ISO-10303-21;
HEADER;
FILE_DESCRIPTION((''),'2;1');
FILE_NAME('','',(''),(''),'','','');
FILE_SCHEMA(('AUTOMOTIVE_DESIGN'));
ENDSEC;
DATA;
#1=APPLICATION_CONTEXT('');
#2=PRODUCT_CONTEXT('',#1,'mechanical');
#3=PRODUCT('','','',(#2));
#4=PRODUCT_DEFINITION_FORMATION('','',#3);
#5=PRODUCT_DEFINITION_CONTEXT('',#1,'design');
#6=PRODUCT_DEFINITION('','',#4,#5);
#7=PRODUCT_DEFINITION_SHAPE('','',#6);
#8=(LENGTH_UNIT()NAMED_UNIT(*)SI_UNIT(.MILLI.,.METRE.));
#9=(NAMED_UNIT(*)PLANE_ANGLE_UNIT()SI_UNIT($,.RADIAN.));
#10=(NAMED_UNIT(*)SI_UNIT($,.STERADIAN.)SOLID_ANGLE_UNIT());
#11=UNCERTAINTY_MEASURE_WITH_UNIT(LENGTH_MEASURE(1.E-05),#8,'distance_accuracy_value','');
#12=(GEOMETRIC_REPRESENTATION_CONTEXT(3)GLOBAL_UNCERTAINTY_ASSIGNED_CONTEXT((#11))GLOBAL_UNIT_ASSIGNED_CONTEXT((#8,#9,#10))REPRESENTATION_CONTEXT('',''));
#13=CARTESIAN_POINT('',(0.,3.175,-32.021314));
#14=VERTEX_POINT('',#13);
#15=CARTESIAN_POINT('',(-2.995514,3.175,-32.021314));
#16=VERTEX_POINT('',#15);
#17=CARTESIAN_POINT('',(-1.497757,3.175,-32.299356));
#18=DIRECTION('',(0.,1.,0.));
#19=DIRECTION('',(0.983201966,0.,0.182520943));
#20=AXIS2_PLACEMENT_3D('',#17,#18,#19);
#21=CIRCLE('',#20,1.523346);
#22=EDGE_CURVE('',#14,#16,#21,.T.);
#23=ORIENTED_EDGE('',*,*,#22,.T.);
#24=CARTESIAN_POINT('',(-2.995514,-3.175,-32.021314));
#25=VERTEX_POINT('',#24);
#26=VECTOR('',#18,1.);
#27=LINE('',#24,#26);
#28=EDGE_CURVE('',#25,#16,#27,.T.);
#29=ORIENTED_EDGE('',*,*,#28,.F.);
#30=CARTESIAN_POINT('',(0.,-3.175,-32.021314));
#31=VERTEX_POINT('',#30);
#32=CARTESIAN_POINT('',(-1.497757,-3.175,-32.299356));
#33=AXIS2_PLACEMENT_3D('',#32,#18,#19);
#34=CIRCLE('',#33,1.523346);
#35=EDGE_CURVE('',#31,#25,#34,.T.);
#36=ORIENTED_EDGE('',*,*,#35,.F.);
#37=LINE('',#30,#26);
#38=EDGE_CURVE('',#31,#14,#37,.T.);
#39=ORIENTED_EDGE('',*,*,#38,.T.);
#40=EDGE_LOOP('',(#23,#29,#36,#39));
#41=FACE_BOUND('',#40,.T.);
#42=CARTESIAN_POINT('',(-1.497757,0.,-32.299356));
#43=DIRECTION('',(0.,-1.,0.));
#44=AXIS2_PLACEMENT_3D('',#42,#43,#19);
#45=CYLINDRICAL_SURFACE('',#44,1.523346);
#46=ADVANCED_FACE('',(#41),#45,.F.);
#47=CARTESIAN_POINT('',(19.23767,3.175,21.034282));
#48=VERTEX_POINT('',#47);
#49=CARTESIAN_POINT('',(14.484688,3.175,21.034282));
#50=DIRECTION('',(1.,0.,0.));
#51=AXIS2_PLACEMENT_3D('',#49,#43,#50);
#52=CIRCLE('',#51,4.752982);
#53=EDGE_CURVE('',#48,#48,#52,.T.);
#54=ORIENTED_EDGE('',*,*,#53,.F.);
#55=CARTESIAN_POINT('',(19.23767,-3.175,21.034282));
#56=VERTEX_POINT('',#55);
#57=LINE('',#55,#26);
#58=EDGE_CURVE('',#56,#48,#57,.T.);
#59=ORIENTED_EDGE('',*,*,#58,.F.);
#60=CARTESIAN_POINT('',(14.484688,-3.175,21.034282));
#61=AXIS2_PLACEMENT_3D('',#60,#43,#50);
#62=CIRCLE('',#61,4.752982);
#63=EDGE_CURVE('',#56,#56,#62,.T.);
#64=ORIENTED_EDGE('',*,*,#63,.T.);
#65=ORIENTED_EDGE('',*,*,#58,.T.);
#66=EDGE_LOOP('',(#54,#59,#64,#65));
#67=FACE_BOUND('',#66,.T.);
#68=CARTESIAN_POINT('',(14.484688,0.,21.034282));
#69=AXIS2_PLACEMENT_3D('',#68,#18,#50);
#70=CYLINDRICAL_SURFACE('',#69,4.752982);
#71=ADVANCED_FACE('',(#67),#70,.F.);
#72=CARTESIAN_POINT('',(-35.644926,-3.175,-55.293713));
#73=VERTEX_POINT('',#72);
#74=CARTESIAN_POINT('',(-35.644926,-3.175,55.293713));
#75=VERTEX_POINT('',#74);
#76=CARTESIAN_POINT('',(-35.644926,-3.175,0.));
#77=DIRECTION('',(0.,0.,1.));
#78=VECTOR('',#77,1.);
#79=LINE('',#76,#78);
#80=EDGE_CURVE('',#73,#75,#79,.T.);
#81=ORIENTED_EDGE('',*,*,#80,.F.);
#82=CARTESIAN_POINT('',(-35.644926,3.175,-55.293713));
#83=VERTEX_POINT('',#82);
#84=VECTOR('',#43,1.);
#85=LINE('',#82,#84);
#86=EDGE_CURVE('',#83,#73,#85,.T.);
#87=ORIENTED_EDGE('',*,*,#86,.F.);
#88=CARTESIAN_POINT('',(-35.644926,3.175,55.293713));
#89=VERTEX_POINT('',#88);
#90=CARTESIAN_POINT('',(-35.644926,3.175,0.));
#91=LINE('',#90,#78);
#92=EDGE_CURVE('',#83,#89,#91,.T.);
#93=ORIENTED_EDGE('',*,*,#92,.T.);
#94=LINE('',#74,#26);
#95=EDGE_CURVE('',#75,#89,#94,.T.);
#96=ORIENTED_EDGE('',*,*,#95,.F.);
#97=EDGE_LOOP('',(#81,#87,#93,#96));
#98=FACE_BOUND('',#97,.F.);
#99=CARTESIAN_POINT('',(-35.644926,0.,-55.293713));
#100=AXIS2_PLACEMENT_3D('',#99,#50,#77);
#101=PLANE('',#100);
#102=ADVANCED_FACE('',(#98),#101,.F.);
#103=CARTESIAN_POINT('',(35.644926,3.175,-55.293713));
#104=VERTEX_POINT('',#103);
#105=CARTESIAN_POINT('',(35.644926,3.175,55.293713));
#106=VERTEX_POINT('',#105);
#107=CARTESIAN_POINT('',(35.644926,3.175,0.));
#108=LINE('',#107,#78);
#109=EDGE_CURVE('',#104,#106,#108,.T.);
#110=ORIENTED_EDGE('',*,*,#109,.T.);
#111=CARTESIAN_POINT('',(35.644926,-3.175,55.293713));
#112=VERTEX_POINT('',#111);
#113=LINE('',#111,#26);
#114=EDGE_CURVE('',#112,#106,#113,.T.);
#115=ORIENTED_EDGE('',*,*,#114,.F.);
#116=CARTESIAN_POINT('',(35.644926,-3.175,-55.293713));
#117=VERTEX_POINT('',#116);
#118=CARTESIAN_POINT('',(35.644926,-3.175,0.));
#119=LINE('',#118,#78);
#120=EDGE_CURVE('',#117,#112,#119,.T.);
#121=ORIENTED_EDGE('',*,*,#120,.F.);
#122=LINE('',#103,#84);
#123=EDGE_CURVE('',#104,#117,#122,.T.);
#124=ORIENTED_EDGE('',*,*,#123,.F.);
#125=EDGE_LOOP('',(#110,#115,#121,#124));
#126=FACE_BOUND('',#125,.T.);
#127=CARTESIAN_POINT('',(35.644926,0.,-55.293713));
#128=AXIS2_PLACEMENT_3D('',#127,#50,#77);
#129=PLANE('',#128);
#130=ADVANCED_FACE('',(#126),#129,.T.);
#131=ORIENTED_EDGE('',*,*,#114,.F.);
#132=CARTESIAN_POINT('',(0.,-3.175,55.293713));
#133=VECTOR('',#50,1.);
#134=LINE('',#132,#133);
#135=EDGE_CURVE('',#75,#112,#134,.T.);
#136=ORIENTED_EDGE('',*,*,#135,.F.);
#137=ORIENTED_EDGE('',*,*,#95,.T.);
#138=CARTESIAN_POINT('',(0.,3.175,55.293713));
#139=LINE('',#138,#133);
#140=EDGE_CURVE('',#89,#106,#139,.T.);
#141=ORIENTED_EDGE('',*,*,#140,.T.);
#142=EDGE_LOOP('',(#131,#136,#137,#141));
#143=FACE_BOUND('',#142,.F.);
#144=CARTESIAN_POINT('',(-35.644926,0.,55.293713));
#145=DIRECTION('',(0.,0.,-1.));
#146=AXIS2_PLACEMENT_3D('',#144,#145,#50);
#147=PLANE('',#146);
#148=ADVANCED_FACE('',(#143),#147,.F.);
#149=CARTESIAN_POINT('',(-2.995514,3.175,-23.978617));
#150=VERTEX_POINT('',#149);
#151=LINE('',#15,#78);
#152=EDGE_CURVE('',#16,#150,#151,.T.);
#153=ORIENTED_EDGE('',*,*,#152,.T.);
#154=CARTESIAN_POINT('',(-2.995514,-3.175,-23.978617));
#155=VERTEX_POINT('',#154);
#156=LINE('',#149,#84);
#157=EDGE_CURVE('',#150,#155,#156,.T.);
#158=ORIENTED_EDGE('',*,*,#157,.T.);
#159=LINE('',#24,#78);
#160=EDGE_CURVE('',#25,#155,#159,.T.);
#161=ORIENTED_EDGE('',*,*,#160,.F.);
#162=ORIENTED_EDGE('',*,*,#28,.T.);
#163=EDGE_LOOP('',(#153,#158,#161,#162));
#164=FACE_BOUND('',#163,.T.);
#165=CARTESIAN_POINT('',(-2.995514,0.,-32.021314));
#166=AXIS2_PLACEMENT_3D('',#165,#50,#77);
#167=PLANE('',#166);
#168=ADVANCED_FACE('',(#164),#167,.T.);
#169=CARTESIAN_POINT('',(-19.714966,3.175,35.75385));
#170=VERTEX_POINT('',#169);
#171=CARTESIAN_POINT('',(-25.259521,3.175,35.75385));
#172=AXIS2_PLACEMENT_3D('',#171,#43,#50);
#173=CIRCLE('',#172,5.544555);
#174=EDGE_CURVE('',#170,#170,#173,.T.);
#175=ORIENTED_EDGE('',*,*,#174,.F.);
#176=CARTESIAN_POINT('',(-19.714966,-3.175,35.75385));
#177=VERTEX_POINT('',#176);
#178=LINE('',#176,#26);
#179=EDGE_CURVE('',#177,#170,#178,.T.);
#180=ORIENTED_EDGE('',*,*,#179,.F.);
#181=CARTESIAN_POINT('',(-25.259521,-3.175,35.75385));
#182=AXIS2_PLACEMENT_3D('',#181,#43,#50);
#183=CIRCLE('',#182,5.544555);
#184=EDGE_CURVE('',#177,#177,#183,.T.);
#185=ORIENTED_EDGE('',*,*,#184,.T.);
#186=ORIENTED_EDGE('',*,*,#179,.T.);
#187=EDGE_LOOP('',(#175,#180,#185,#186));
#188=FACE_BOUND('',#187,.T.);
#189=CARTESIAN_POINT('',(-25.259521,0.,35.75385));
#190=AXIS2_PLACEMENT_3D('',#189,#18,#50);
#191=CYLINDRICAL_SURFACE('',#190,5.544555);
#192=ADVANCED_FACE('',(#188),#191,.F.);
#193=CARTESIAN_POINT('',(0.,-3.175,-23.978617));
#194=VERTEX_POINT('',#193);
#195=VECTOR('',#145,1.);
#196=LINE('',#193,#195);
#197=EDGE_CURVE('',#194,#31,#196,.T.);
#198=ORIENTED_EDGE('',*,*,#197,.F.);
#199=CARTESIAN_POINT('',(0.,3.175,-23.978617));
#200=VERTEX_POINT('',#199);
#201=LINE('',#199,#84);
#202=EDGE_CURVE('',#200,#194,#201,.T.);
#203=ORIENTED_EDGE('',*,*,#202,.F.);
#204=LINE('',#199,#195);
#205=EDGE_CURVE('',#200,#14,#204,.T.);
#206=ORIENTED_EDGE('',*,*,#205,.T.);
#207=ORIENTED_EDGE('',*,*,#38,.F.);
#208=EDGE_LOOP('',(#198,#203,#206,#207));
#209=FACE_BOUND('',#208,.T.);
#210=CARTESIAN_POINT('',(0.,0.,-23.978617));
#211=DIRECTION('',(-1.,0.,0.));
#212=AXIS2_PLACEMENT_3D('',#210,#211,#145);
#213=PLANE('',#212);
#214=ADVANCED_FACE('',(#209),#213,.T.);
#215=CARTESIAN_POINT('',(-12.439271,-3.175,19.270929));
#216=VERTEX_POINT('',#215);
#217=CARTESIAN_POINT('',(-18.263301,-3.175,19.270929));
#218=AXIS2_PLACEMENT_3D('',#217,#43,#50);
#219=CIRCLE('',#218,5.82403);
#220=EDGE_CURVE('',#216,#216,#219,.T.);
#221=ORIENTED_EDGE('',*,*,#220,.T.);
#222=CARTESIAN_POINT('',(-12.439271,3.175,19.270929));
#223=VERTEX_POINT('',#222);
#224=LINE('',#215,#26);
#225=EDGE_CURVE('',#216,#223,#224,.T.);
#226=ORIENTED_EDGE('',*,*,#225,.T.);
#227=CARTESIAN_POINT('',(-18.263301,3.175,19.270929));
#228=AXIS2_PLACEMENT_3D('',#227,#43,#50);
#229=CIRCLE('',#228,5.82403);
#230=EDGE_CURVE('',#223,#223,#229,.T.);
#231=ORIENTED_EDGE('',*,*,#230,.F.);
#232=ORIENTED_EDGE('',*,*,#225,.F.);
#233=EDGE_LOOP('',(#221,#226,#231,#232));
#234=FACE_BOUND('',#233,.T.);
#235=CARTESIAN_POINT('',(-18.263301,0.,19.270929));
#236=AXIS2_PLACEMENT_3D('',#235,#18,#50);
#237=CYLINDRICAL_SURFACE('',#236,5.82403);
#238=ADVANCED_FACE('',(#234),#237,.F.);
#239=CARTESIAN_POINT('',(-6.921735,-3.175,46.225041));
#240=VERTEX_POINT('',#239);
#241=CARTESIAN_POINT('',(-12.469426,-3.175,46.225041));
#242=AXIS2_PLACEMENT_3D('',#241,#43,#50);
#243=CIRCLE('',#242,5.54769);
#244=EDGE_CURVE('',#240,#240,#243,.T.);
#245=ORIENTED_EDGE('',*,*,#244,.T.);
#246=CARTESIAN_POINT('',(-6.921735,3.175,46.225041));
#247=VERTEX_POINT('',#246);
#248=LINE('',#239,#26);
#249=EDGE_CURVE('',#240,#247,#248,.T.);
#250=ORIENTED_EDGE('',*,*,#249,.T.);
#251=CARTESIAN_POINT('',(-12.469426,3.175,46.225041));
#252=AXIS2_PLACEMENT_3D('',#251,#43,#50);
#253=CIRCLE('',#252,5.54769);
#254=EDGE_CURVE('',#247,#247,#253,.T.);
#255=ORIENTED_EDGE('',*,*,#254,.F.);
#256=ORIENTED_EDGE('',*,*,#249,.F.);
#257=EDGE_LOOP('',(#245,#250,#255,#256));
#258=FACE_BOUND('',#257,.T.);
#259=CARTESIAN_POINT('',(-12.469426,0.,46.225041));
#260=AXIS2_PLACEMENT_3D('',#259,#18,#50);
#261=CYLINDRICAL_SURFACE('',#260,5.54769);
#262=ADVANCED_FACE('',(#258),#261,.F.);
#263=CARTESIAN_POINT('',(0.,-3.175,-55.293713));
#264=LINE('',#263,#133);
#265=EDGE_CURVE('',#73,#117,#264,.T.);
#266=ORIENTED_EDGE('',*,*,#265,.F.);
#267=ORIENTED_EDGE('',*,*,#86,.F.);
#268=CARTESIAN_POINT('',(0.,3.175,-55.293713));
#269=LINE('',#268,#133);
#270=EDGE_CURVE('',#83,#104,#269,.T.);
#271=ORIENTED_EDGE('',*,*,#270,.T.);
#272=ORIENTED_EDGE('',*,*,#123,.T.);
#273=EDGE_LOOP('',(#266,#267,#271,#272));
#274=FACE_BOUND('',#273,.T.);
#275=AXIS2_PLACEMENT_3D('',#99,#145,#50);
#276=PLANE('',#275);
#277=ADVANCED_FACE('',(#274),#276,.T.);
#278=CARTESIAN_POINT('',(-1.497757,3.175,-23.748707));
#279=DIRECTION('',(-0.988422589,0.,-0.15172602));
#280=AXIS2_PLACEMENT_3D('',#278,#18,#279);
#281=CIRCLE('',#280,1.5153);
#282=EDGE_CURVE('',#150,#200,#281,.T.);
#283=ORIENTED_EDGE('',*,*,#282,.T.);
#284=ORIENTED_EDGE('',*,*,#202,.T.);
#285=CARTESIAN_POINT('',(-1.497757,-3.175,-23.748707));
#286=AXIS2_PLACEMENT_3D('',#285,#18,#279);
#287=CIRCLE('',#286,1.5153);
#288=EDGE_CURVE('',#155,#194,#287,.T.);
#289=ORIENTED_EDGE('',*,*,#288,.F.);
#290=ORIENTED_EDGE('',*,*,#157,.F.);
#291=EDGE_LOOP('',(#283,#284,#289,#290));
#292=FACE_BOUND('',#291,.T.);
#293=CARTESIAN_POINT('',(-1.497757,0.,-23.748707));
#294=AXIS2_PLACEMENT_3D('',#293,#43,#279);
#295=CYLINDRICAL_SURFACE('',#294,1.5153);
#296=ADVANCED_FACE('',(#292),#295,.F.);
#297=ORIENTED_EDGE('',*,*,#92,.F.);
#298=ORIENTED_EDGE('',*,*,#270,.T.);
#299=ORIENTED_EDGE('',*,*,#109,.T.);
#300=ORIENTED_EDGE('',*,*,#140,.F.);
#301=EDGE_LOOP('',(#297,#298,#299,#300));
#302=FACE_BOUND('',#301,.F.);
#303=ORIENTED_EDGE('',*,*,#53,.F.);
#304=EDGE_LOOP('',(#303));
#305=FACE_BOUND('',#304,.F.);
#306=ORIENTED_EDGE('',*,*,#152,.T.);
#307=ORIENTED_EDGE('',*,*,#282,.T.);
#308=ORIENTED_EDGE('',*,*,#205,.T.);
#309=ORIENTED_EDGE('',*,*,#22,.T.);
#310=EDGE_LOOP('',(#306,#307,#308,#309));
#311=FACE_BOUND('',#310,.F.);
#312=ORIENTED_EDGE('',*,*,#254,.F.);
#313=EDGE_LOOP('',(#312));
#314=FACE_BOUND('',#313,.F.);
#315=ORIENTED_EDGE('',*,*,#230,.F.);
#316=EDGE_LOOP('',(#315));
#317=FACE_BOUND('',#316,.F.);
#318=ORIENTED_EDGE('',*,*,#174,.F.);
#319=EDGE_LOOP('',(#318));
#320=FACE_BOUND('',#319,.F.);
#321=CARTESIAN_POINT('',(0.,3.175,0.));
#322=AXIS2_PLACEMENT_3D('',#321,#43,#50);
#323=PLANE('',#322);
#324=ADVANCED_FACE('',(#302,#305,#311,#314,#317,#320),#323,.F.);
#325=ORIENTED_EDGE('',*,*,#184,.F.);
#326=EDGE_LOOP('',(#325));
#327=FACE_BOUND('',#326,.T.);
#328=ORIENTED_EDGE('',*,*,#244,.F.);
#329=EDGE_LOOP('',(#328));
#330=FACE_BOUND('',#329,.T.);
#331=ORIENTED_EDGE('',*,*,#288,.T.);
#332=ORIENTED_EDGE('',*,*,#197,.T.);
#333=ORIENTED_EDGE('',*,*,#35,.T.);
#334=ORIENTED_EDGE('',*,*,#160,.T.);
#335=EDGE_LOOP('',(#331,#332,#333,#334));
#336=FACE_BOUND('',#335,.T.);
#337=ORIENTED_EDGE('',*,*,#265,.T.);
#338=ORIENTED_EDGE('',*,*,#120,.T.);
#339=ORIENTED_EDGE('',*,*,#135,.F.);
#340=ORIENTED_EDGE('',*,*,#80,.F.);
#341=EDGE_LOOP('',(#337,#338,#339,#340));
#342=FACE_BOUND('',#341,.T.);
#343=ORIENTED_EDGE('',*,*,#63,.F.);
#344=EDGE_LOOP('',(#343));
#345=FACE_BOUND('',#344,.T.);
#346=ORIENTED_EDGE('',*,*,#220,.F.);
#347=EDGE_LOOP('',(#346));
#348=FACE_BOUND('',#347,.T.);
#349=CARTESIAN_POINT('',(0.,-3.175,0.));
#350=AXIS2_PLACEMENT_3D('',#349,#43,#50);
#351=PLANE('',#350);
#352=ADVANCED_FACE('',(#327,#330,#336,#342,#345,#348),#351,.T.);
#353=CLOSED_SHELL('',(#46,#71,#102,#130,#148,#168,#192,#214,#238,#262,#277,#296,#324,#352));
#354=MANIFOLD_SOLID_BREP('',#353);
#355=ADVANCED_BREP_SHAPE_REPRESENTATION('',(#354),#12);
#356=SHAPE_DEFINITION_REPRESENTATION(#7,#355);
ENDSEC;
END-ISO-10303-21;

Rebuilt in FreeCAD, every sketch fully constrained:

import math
import FreeCAD as App
import Part
import Sketcher

V = App.Vector
Q = App.Units.Quantity

doc = App.newDocument("Part")
body = doc.addObject("PartDesign::Body", "Body")

# Sketch on XZ plane
sketch1 = body.newObject("Sketcher::SketchObject", "Sketch")
sketch1.AttachmentSupport = (doc.getObject("XZ_Plane"), [""])
sketch1.MapMode = "FlatFace"
sketch1.addGeometry([
    Part.LineSegment(V(-35.644926, 55.293713, 0), V(-35.644926, -55.293713, 0)),  # 0
    Part.LineSegment(V(-35.644926, -55.293713, 0), V(35.644926, -55.293713, 0)),  # 1
    Part.LineSegment(V(35.644926, -55.293713, 0), V(35.644926, 55.293713, 0)),  # 2
    Part.LineSegment(V(35.644926, 55.293713, 0), V(-35.644926, 55.293713, 0)),  # 3
    Part.LineSegment(V(-2.995514, -32.021314, 0), V(-2.995514, -23.978617, 0)),  # 4
    Part.ArcOfCircle(Part.Circle(V(-1.497757, -23.748707, 0), V(0, 0, 1), 1.5153), math.radians(-8.726965), math.radians(188.726965)),  # 5
    Part.LineSegment(V(0, -23.978617, 0), V(0, -32.021314, 0)),  # 6
    Part.ArcOfCircle(Part.Circle(V(-1.497757, -32.299356, 0), V(0, 0, 1), 1.523346), math.radians(169.483368), math.radians(370.516632)),  # 7
    Part.Circle(V(-18.263301, 19.270929, 0), V(0, 0, 1), 5.82403),  # 8
    Part.Circle(V(-25.259521, 35.75385, 0), V(0, 0, 1), 5.544555),  # 9
    Part.Circle(V(-12.469426, 46.225041, 0), V(0, 0, 1), 5.54769),  # 10
    Part.Circle(V(14.484688, 21.034282, 0), V(0, 0, 1), 4.752982),  # 11
], False)
sketch1.addConstraint([
    Sketcher.Constraint("Coincident", 0, 2, 1, 1),
    Sketcher.Constraint("Coincident", 1, 2, 2, 1),
    Sketcher.Constraint("Coincident", 2, 2, 3, 1),
    Sketcher.Constraint("Coincident", 3, 2, 0, 1),
    Sketcher.Constraint("Coincident", 4, 2, 5, 2),
    Sketcher.Constraint("Coincident", 5, 1, 6, 1),
    Sketcher.Constraint("Coincident", 6, 2, 7, 2),
    Sketcher.Constraint("Coincident", 7, 1, 4, 1),
    Sketcher.Constraint("Vertical", 0),
    Sketcher.Constraint("Horizontal", 1),
    Sketcher.Constraint("Vertical", 2),
    Sketcher.Constraint("Horizontal", 3),
    Sketcher.Constraint("Vertical", 4),
    Sketcher.Constraint("Vertical", 6),
    Sketcher.Constraint("Symmetric", 0, 2, 2, 2, -1, 1),
    Sketcher.Constraint("PointOnObject", 5, 1, -2),
    Sketcher.Constraint("Horizontal", 4, 2, 5, 1),
    Sketcher.Constraint("Horizontal", 6, 2, 7, 1),
    Sketcher.Constraint("Radius", 5, Q("1.5153 mm")),
    Sketcher.Constraint("Diameter", 8, Q("11.648061 mm")),
    Sketcher.Constraint("Diameter", 9, Q("11.089109 mm")),
    Sketcher.Constraint("Diameter", 10, Q("11.095381 mm")),
    Sketcher.Constraint("Diameter", 11, Q("9.505964 mm")),
    Sketcher.Constraint("Radius", 7, Q("1.523346 mm")),
    Sketcher.Constraint("DistanceX", 8, 3, -1, 1, Q("18.263301 mm")),
    Sketcher.Constraint("DistanceX", 3, 2, 10, 3, Q("23.1755 mm")),
    Sketcher.Constraint("DistanceX", 4, 2, 11, 3, Q("17.480202 mm")),
    Sketcher.Constraint("DistanceY", 4, 2, 11, 3, Q("45.012899 mm")),
    Sketcher.Constraint("DistanceY", 0, 2, 6, 2, Q("23.272399 mm")),
    Sketcher.Constraint("DistanceX", 1, 1, 1, 2, Q("71.289852 mm")),
    Sketcher.Constraint("DistanceY", 0, 2, 0, 1, Q("110.587426 mm")),
    Sketcher.Constraint("DistanceY", 4, 1, 4, 2, Q("8.042697 mm")),
    Sketcher.Constraint("DistanceY", -1, 1, 8, 3, Q("19.270929 mm")),
    Sketcher.Constraint("DistanceX", 9, 3, -1, 1, Q("25.259521 mm")),
    Sketcher.Constraint("DistanceY", -1, 1, 9, 3, Q("35.75385 mm")),
    Sketcher.Constraint("DistanceY", -1, 1, 10, 3, Q("46.225041 mm")),
    Sketcher.Constraint("DistanceY", 7, 3, 5, 3, Q("8.55065 mm")),
])
pad1 = body.newObject("PartDesign::Pad", "Pad")
pad1.Profile = sketch1
pad1.Length = Q("0.25 in")
pad1.Midplane = True

# Sketch on XZ plane
sketch2 = body.newObject("Sketcher::SketchObject", "Sketch001")
sketch2.AttachmentSupport = (doc.getObject("XZ_Plane"), [""])
sketch2.MapMode = "FlatFace"
sketch2.addGeometry([
    Part.LineSegment(V(-35.644926, 55.293713, 0), V(-35.644926, -55.293713, 0)),  # 0
    Part.LineSegment(V(-35.644926, -55.293713, 0), V(35.644926, -55.293713, 0)),  # 1
    Part.LineSegment(V(35.644926, -55.293713, 0), V(35.644926, 55.293713, 0)),  # 2
    Part.LineSegment(V(35.644926, 55.293713, 0), V(-35.644926, 55.293713, 0)),  # 3
    Part.LineSegment(V(-2.995514, -32.021314, 0), V(-2.995514, -23.978617, 0)),  # 4
    Part.ArcOfCircle(Part.Circle(V(-1.497757, -23.748707, 0), V(0, 0, 1), 1.5153), math.radians(-8.726965), math.radians(188.726965)),  # 5
    Part.LineSegment(V(0, -23.978617, 0), V(0, -32.021314, 0)),  # 6
    Part.ArcOfCircle(Part.Circle(V(-1.497757, -32.299356, 0), V(0, 0, 1), 1.523346), math.radians(169.483368), math.radians(370.516632)),  # 7
    Part.Circle(V(-18.263301, 19.270929, 0), V(0, 0, 1), 5.82403),  # 8
    Part.Circle(V(-25.259521, 35.75385, 0), V(0, 0, 1), 5.544555),  # 9
    Part.Circle(V(-12.469426, 46.225041, 0), V(0, 0, 1), 5.54769),  # 10
    Part.Circle(V(14.484688, 21.034282, 0), V(0, 0, 1), 4.752982),  # 11
], False)
sketch2.addConstraint([
    Sketcher.Constraint("Coincident", 0, 2, 1, 1),
    Sketcher.Constraint("Coincident", 1, 2, 2, 1),
    Sketcher.Constraint("Coincident", 2, 2, 3, 1),
    Sketcher.Constraint("Coincident", 3, 2, 0, 1),
    Sketcher.Constraint("Coincident", 4, 2, 5, 2),
    Sketcher.Constraint("Coincident", 5, 1, 6, 1),
    Sketcher.Constraint("Coincident", 6, 2, 7, 2),
    Sketcher.Constraint("Coincident", 7, 1, 4, 1),
    Sketcher.Constraint("Vertical", 0),
    Sketcher.Constraint("Horizontal", 1),
    Sketcher.Constraint("Vertical", 2),
    Sketcher.Constraint("Horizontal", 3),
    Sketcher.Constraint("Vertical", 4),
    Sketcher.Constraint("Vertical", 6),
    Sketcher.Constraint("Symmetric", 0, 2, 2, 2, -1, 1),
    Sketcher.Constraint("PointOnObject", 5, 1, -2),
    Sketcher.Constraint("Horizontal", 4, 2, 5, 1),
    Sketcher.Constraint("Horizontal", 6, 2, 7, 1),
    Sketcher.Constraint("Radius", 5, Q("1.5153 mm")),
    Sketcher.Constraint("Diameter", 8, Q("11.648061 mm")),
    Sketcher.Constraint("Diameter", 9, Q("11.089109 mm")),
    Sketcher.Constraint("Diameter", 10, Q("11.095381 mm")),
    Sketcher.Constraint("Diameter", 11, Q("9.505964 mm")),
    Sketcher.Constraint("Radius", 7, Q("1.523346 mm")),
    Sketcher.Constraint("DistanceX", 8, 3, -1, 1, Q("18.263301 mm")),
    Sketcher.Constraint("DistanceX", 3, 2, 10, 3, Q("23.1755 mm")),
    Sketcher.Constraint("DistanceX", 4, 2, 11, 3, Q("17.480202 mm")),
    Sketcher.Constraint("DistanceY", 4, 2, 11, 3, Q("45.012899 mm")),
    Sketcher.Constraint("DistanceY", 0, 2, 6, 2, Q("23.272399 mm")),
    Sketcher.Constraint("DistanceX", 1, 1, 1, 2, Q("71.289852 mm")),
    Sketcher.Constraint("DistanceY", 0, 2, 0, 1, Q("110.587426 mm")),
    Sketcher.Constraint("DistanceY", 4, 1, 4, 2, Q("8.042697 mm")),
    Sketcher.Constraint("DistanceY", -1, 1, 8, 3, Q("19.270929 mm")),
    Sketcher.Constraint("DistanceX", 9, 3, -1, 1, Q("25.259521 mm")),
    Sketcher.Constraint("DistanceY", -1, 1, 9, 3, Q("35.75385 mm")),
    Sketcher.Constraint("DistanceY", -1, 1, 10, 3, Q("46.225041 mm")),
    Sketcher.Constraint("DistanceY", 7, 3, 5, 3, Q("8.55065 mm")),
])
pad2 = body.newObject("PartDesign::Pad", "Pad001")
pad2.Profile = sketch2
pad2.Length = Q("0.25 in")
pad2.Midplane = True

doc.recompute()
